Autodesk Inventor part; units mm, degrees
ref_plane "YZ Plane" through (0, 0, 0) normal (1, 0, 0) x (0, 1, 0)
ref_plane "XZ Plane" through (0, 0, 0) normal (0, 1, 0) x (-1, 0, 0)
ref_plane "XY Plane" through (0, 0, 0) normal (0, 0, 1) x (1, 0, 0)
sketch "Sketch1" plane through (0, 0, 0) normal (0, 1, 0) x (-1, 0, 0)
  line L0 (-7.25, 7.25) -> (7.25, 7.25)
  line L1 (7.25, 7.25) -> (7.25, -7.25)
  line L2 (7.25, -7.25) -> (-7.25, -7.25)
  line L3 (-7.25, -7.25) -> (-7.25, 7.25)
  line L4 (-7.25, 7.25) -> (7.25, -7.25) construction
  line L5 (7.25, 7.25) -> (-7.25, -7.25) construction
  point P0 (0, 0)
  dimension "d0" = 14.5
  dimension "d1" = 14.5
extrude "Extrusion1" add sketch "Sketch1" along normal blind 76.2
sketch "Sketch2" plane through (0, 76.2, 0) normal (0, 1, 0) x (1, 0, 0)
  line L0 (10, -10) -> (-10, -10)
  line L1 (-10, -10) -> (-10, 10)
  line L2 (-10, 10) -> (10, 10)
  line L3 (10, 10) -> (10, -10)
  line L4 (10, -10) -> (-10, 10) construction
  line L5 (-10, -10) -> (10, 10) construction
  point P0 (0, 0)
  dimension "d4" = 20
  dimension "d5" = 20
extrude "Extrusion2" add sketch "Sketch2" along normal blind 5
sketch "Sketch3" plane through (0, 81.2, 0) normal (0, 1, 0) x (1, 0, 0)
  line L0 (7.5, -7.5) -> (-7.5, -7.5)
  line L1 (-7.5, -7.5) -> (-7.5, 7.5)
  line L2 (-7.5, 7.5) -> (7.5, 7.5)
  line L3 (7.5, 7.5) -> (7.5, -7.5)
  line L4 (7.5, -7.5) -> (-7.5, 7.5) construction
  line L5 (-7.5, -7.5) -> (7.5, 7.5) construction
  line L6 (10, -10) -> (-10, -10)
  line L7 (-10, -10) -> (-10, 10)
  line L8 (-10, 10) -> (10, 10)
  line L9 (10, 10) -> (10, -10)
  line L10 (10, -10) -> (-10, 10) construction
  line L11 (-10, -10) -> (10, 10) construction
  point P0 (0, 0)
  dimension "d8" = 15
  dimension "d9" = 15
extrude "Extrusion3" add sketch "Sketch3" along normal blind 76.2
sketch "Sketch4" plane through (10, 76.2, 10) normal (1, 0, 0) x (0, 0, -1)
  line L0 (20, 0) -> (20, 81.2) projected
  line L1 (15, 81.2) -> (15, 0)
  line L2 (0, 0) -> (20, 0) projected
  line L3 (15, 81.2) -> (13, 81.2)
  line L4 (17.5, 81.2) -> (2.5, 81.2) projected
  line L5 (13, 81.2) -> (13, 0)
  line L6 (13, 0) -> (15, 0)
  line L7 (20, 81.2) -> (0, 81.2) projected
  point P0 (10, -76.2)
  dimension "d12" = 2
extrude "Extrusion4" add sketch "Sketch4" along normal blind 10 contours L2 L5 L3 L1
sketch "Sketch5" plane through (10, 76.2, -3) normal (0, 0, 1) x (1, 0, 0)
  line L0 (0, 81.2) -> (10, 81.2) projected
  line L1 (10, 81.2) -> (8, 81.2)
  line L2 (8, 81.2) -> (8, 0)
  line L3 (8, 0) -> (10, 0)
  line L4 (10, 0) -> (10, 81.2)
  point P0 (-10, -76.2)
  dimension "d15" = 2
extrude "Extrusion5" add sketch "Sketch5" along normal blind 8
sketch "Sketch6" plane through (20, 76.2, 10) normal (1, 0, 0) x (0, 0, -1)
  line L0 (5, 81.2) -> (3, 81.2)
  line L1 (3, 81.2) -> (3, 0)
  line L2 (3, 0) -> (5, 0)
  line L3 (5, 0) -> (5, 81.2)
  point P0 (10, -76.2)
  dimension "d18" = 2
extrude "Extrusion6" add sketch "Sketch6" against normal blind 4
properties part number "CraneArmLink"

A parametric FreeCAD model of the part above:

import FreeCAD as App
import Part
import Sketcher
from FreeCAD import Vector
Q = App.Units.Quantity


def add_polygon(sketch, points):
    """Adds a closed chain of lines whose ends are joined by coincident constraints."""
    first, n = sketch.GeometryCount, len(points)
    for a, b in zip(points, points[1:] + points[:1]):
        sketch.addGeometry(Part.LineSegment(App.Vector(*a, 0), App.Vector(*b, 0)), False)
    for i in range(n):
        sketch.addConstraint(Sketcher.Constraint("Coincident", first + i, 2, first + (i + 1) % n, 1))

doc = App.newDocument("Part")
body = doc.addObject("PartDesign::Body", "Body")

# Sketch on XZ plane
sketch1 = body.newObject("Sketcher::SketchObject", "Sketch")
sketch1.AttachmentSupport = (doc.getObject("XZ_Plane"), [""])
sketch1.MapMode = "FlatFace"
add_polygon(sketch1, [(-7, 7), (7, 7), (7, -7), (-7, -7)])  # lines 0-3
sketch1.addConstraint(Sketcher.Constraint("Horizontal", 0))
sketch1.addConstraint(Sketcher.Constraint("Vertical", 1))
sketch1.addConstraint(Sketcher.Constraint("Horizontal", 2))
sketch1.addConstraint(Sketcher.Constraint("Vertical", 3))
sketch1.addConstraint(Sketcher.Constraint("Symmetric", 0, 2, 2, 2, -1, 1))
sketch1.addConstraint(Sketcher.Constraint("Equal", 2, 1))
sketch1.addConstraint(Sketcher.Constraint("DistanceX", 0, 1, 0, 2, Q("14.5 mm")))
pad1 = body.newObject("PartDesign::Pad", "Pad")
pad1.Profile = sketch1
pad1.Length = 76.2
pad1.Reversed = True

# Sketch on XZ plane
sketch2 = body.newObject("Sketcher::SketchObject", "Sketch001")
sketch2.AttachmentSupport = (doc.getObject("XZ_Plane"), [""])
sketch2.MapMode = "FlatFace"
sketch2.AttachmentOffset = App.Placement(Vector(0, 0, -76.2), App.Rotation())
add_polygon(sketch2, [(-10, 10), (10, 10), (10, -10), (-10, -10)])  # lines 0-3
sketch2.addConstraint(Sketcher.Constraint("Horizontal", 0))
sketch2.addConstraint(Sketcher.Constraint("Vertical", 1))
sketch2.addConstraint(Sketcher.Constraint("Horizontal", 2))
sketch2.addConstraint(Sketcher.Constraint("Vertical", 3))
sketch2.addConstraint(Sketcher.Constraint("Symmetric", 0, 2, 2, 2, -1, 1))
sketch2.addConstraint(Sketcher.Constraint("Equal", 2, 1))
sketch2.addConstraint(Sketcher.Constraint("DistanceX", 0, 1, 0, 2, Q("20 mm")))
pad2 = body.newObject("PartDesign::Pad", "Pad001")
pad2.Profile = sketch2
pad2.Length = 5
pad2.Reversed = True

# Sketch on XZ plane
sketch3 = body.newObject("Sketcher::SketchObject", "Sketch002")
sketch3.AttachmentSupport = (doc.getObject("XZ_Plane"), [""])
sketch3.MapMode = "FlatFace"
sketch3.AttachmentOffset = App.Placement(Vector(0, 0, -81.2), App.Rotation())
add_polygon(sketch3, [(-10, 10), (10, 10), (10, -10), (-10, -10)])  # lines 0-3
add_polygon(sketch3, [(8, -8), (8, 8), (-8, 8), (-8, -8)])  # lines 4-7
sketch3.addConstraint(Sketcher.Constraint("Horizontal", 0))
sketch3.addConstraint(Sketcher.Constraint("Vertical", 1))
sketch3.addConstraint(Sketcher.Constraint("Horizontal", 2))
sketch3.addConstraint(Sketcher.Constraint("Vertical", 3))
sketch3.addConstraint(Sketcher.Constraint("Vertical", 4))
sketch3.addConstraint(Sketcher.Constraint("Horizontal", 5))
sketch3.addConstraint(Sketcher.Constraint("Vertical", 6))
sketch3.addConstraint(Sketcher.Constraint("Horizontal", 7))
sketch3.addConstraint(Sketcher.Constraint("Symmetric", 0, 2, 2, 2, -1, 1))
sketch3.addConstraint(Sketcher.Constraint("Symmetric", 4, 2, 6, 2, -1, 1))
sketch3.addConstraint(Sketcher.Constraint("Equal", 2, 1))
sketch3.addConstraint(Sketcher.Constraint("Equal", 7, 4))
sketch3.addConstraint(Sketcher.Constraint("DistanceX", 5, 2, 5, 1, Q("15 mm")))
sketch3.addConstraint(Sketcher.Constraint("DistanceX", 0, 1, 0, 2, Q("20 mm")))
pad3 = body.newObject("PartDesign::Pad", "Pad002")
pad3.Profile = sketch3
pad3.Length = 76.2
pad3.Reversed = True

# Sketch on YZ plane
sketch4 = body.newObject("Sketcher::SketchObject", "Sketch003")
sketch4.AttachmentSupport = (doc.getObject("YZ_Plane"), [""])
sketch4.MapMode = "FlatFace"
sketch4.AttachmentOffset = App.Placement(Vector(0, 0, 10), App.Rotation())
add_polygon(sketch4, [(76.2, -3), (76.2, -5), (157.4, -5), (157.4, -3)])  # lines 0-3
sketch4.addConstraint(Sketcher.Constraint("Vertical", 0))
sketch4.addConstraint(Sketcher.Constraint("Horizontal", 1))
sketch4.addConstraint(Sketcher.Constraint("Vertical", 2))
sketch4.addConstraint(Sketcher.Constraint("Horizontal", 3))
sketch4.addConstraint(Sketcher.Constraint("DistanceY", 0, 2, 0, 1, Q("2 mm")))
sketch4.addConstraint(Sketcher.Constraint("DistanceX", 1, 1, 1, 2, Q("81.2 mm")))
sketch4.addConstraint(Sketcher.Constraint("DistanceY", 0, 2, -1, 1, Q("5 mm")))
sketch4.addConstraint(Sketcher.Constraint("DistanceX", -1, 1, 0, 2, Q("76.2 mm")))
pad4 = body.newObject("PartDesign::Pad", "Pad003")
pad4.Profile = sketch4
pad4.Length = 10

# Sketch on XY plane
sketch5 = body.newObject("Sketcher::SketchObject", "Sketch004")
sketch5.AttachmentSupport = (doc.getObject("XY_Plane"), [""])
sketch5.MapMode = "FlatFace"
sketch5.AttachmentOffset = App.Placement(Vector(0, 0, -3), App.Rotation())
add_polygon(sketch5, [(20, 157.4), (18, 157.4), (18, 76.2), (20, 76.2)])  # lines 0-3
sketch5.addConstraint(Sketcher.Constraint("Horizontal", 0))
sketch5.addConstraint(Sketcher.Constraint("Vertical", 1))
sketch5.addConstraint(Sketcher.Constraint("Horizontal", 2))
sketch5.addConstraint(Sketcher.Constraint("Vertical", 3))
sketch5.addConstraint(Sketcher.Constraint("DistanceX", 0, 2, 0, 1, Q("2 mm")))
sketch5.addConstraint(Sketcher.Constraint("DistanceY", 1, 2, 1, 1, Q("81.2 mm")))
sketch5.addConstraint(Sketcher.Constraint("DistanceX", -1, 1, 0, 2, Q("18 mm")))
sketch5.addConstraint(Sketcher.Constraint("DistanceY", -1, 1, 0, 2, Q("157.4 mm")))
pad5 = body.newObject("PartDesign::Pad", "Pad004")
pad5.Profile = sketch5
pad5.Length = 8

# Sketch on YZ plane
sketch6 = body.newObject("Sketcher::SketchObject", "Sketch005")
sketch6.AttachmentSupport = (doc.getObject("YZ_Plane"), [""])
sketch6.MapMode = "FlatFace"
sketch6.AttachmentOffset = App.Placement(Vector(0, 0, 20), App.Rotation())
add_polygon(sketch6, [(76.2, 5), (157.4, 5), (157.4, 7), (76.2, 7)])  # lines 0-3
sketch6.addConstraint(Sketcher.Constraint("Horizontal", 0))
sketch6.addConstraint(Sketcher.Constraint("Vertical", 1))
sketch6.addConstraint(Sketcher.Constraint("Horizontal", 2))
sketch6.addConstraint(Sketcher.Constraint("Vertical", 3))
sketch6.addConstraint(Sketcher.Constraint("DistanceY", 1, 1, 1, 2, Q("2 mm")))
sketch6.addConstraint(Sketcher.Constraint("DistanceX", 0, 1, 0, 2, Q("81.2 mm")))
sketch6.addConstraint(Sketcher.Constraint("DistanceY", -1, 1, 0, 2, Q("5 mm")))
sketch6.addConstraint(Sketcher.Constraint("DistanceX", -1, 1, 0, 2, Q("157.4 mm")))
pad6 = body.newObject("PartDesign::Pad", "Pad005")
pad6.Profile = sketch6
pad6.Length = 4
pad6.Reversed = True

doc.recompute()
